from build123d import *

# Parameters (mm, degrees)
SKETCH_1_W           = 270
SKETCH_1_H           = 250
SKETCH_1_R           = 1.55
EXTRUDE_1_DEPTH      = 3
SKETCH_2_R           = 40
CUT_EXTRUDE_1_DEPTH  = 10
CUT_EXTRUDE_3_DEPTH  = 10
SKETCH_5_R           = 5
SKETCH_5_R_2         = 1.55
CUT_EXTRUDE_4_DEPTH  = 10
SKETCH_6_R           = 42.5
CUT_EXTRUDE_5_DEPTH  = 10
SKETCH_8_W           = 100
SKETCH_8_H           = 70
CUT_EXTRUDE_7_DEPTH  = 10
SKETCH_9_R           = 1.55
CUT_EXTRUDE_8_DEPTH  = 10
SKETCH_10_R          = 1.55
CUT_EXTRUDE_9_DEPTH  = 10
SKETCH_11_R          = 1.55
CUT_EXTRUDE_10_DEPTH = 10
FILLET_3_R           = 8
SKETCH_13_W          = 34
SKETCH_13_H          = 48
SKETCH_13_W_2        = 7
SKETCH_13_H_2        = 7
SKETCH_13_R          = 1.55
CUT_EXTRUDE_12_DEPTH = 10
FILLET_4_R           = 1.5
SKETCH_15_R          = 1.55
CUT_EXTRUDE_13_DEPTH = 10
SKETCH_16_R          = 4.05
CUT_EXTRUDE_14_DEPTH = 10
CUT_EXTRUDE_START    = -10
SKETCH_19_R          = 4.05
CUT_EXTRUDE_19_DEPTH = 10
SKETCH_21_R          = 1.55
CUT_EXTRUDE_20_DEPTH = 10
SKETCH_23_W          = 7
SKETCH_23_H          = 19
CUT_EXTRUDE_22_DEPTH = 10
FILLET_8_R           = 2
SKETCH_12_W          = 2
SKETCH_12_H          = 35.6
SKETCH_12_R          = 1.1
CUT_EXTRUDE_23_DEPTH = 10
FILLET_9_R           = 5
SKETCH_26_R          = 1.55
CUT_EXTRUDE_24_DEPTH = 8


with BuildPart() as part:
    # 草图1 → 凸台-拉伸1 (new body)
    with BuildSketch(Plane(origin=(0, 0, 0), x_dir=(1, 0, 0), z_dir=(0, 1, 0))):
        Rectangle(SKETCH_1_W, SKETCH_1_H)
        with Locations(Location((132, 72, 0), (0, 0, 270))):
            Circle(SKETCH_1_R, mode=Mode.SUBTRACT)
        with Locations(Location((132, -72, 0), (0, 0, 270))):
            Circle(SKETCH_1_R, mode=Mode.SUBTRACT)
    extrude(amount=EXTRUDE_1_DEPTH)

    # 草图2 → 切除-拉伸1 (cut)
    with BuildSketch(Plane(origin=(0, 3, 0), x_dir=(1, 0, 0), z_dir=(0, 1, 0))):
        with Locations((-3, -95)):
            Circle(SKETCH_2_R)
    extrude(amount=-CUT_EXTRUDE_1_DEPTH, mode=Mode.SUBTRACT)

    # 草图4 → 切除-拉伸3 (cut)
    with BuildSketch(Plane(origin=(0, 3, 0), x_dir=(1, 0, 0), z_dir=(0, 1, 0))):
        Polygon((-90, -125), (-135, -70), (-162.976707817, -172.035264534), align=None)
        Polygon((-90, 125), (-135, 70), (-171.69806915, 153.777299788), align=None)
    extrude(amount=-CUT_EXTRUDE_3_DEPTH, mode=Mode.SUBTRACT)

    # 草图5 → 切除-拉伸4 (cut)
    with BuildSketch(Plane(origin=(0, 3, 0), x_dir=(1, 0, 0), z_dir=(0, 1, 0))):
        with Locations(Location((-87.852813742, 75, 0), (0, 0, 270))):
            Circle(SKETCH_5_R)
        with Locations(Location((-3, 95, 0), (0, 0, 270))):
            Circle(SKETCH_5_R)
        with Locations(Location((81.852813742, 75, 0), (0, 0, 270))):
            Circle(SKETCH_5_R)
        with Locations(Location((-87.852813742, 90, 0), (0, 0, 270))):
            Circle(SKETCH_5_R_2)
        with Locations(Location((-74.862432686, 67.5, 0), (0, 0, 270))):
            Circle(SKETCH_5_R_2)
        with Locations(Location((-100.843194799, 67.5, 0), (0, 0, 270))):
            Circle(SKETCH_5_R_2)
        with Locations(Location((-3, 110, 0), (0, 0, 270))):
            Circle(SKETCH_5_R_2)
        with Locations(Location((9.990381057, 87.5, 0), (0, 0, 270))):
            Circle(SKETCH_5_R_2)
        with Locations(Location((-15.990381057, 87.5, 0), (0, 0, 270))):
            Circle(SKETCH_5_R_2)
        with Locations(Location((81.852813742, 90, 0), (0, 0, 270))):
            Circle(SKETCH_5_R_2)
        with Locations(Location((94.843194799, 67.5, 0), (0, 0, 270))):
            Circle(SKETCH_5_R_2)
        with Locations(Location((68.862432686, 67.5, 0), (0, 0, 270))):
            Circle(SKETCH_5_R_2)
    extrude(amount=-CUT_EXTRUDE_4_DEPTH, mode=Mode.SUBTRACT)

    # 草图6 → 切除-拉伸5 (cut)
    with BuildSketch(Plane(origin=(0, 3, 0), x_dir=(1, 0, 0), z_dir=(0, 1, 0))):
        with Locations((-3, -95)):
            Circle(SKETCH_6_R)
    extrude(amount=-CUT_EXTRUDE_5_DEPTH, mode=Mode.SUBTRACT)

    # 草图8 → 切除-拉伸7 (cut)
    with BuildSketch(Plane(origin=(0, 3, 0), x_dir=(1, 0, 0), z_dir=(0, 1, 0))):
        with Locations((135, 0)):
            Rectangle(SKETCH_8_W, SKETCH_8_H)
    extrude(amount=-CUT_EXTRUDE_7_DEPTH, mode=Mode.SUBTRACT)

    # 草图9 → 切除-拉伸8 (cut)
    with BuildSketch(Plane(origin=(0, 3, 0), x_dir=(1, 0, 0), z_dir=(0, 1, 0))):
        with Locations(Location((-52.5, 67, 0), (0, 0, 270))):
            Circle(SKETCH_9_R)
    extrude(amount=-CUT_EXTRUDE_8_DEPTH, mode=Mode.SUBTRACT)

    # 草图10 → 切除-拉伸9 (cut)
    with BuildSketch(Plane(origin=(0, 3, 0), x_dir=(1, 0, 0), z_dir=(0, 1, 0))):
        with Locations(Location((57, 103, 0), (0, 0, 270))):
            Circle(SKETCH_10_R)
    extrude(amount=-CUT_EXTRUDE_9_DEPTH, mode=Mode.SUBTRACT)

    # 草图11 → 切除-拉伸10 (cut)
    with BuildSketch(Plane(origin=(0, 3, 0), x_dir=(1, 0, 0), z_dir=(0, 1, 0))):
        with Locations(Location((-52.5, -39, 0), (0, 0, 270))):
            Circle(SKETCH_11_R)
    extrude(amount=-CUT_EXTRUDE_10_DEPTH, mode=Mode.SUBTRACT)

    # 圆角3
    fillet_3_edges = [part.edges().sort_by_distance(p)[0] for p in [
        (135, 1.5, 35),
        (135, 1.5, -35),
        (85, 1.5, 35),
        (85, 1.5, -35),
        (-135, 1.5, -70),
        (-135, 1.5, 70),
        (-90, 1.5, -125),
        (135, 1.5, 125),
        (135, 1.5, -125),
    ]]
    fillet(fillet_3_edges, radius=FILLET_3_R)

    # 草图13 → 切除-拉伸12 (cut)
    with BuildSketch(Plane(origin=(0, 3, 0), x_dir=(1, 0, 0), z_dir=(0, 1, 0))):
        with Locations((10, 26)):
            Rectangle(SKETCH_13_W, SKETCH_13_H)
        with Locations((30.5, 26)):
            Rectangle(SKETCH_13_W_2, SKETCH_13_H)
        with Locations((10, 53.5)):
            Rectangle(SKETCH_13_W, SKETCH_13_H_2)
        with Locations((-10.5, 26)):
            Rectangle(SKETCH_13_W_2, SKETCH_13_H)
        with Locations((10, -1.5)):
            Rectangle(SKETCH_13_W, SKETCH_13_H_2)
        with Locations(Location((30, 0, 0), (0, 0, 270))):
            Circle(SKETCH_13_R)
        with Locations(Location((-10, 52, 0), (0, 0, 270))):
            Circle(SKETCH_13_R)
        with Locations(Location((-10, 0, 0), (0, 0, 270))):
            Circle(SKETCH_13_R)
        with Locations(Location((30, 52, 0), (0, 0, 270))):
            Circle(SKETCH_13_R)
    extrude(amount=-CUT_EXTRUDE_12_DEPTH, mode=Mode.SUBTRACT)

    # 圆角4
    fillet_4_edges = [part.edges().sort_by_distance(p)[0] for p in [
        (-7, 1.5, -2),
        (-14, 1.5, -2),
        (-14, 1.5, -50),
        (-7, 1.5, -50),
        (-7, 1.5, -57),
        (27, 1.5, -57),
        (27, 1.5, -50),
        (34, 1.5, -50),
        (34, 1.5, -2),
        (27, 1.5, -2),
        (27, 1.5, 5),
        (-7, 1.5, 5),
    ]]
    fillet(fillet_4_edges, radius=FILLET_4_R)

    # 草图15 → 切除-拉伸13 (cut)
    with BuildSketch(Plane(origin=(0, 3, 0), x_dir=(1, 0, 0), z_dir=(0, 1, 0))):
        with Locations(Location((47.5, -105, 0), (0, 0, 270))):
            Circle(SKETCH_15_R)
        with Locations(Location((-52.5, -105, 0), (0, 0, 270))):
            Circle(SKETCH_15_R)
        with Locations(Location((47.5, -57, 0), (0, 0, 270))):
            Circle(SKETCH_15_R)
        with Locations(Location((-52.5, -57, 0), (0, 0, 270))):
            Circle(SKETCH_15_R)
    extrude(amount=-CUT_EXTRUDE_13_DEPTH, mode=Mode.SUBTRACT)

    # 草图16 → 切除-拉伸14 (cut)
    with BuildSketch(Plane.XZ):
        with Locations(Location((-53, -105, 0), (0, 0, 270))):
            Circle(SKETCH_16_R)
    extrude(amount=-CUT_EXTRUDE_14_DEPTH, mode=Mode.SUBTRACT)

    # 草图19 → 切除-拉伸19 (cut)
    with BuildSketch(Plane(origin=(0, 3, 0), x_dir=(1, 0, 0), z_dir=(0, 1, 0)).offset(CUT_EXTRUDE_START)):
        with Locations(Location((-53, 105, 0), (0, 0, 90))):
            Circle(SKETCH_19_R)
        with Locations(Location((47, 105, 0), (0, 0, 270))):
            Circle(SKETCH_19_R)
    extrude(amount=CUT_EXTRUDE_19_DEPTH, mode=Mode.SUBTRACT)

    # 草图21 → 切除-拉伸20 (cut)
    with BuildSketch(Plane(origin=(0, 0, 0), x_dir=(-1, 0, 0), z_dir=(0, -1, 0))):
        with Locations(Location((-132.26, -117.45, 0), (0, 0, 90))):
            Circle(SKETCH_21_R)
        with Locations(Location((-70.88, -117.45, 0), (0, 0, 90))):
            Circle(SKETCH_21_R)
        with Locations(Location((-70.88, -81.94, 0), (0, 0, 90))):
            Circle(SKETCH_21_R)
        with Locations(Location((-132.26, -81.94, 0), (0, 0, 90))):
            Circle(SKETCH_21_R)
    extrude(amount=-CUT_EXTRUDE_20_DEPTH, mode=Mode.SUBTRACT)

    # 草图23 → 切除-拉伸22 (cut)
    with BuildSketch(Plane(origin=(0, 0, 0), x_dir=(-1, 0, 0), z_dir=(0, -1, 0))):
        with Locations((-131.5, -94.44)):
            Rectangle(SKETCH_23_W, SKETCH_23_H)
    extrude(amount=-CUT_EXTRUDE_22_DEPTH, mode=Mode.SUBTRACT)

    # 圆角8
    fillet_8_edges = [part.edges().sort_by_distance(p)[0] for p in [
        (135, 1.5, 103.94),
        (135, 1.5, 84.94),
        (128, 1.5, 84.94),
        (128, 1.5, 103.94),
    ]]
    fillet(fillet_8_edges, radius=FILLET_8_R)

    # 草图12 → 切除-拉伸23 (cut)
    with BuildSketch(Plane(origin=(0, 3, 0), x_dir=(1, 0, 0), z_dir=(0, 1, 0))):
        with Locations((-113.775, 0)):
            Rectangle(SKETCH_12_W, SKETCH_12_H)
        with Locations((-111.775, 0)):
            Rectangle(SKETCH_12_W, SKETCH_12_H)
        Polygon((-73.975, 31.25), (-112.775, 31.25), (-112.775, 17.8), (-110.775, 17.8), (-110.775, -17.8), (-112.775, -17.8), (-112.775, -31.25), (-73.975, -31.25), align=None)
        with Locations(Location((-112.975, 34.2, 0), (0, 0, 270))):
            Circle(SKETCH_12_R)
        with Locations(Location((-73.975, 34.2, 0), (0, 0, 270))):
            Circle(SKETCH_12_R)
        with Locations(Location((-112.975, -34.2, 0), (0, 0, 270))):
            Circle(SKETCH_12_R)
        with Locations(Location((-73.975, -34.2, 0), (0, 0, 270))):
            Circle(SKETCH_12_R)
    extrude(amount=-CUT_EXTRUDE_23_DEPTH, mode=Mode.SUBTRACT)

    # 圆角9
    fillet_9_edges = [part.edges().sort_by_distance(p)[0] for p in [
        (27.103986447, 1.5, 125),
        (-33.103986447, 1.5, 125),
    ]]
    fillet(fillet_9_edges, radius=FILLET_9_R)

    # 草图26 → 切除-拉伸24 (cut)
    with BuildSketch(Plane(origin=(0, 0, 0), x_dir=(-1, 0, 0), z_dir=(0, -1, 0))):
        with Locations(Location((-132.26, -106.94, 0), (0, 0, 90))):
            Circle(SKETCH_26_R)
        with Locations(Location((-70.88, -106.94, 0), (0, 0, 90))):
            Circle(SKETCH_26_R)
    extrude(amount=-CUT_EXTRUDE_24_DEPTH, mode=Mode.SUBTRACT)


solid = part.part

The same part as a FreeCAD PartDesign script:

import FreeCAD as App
import Part
import Sketcher
from FreeCAD import Vector


def edges_at(feature, points):
    """Names of the edges that pass closest to the given points."""
    edges = feature.Shape.Edges
    near = lambda p: min(range(len(edges)), key=lambda i: edges[i].distToShape(Part.Vertex(*p))[0])
    return sorted({f"Edge{near(p) + 1}" for p in points})

doc = App.newDocument("Part")
body = doc.addObject("PartDesign::Body", "Body")

# Sketch on XZ plane
sketch1 = doc.addObject("Sketcher::SketchObject", "Sketch")
body.addObject(sketch1)
sketch1.AttachmentSupport = (doc.XZ_Plane, [""])
sketch1.MapMode = "FlatFace"
sketch1.addGeometry(Part.LineSegment(Vector(-135, -125, 0), Vector(-135, 125, 0)), False)
sketch1.addGeometry(Part.LineSegment(Vector(-135, 125, 0), Vector(135, 125, 0)), False)
sketch1.addGeometry(Part.LineSegment(Vector(135, 125, 0), Vector(135, -125, 0)), False)
sketch1.addGeometry(Part.LineSegment(Vector(135, -125, 0), Vector(-135, -125, 0)), False)
sketch1.addGeometry(Part.Circle(Vector(132, 72, 0), Vector(0, 0, 1), 1.6), False)
sketch1.addGeometry(Part.Circle(Vector(132, -72, 0), Vector(0, 0, 1), 1.6), False)
sketch1.addConstraint(Sketcher.Constraint("Coincident", 0, 2, 1, 1))
sketch1.addConstraint(Sketcher.Constraint("Coincident", 1, 2, 2, 1))
sketch1.addConstraint(Sketcher.Constraint("Coincident", 2, 2, 3, 1))
sketch1.addConstraint(Sketcher.Constraint("Coincident", 3, 2, 0, 1))
sketch1.addConstraint(Sketcher.Constraint("Vertical", 0))
sketch1.addConstraint(Sketcher.Constraint("Horizontal", 1))
sketch1.addConstraint(Sketcher.Constraint("Vertical", 2))
sketch1.addConstraint(Sketcher.Constraint("Horizontal", 3))
sketch1.addConstraint(Sketcher.Constraint("Equal", 4, 5))
sketch1.addConstraint(Sketcher.Constraint("Symmetric", 0, 2, 2, 2, -1, 1))
sketch1.addConstraint(Sketcher.Constraint("Symmetric", 4, 3, 5, 3, -1))
sketch1.addConstraint(Sketcher.Constraint("Diameter", 4, 3.1))
sketch1.addConstraint(Sketcher.Constraint("DistanceX", 1, 1, 1, 2, 270.0))
sketch1.addConstraint(Sketcher.Constraint("DistanceY", 0, 1, 0, 2, 250.0))
sketch1.addConstraint(Sketcher.Constraint("DistanceX", -1, 1, 4, 3, 132.0))
sketch1.addConstraint(Sketcher.Constraint("DistanceY", -1, 1, 4, 3, 72.0))
pad1 = doc.addObject("PartDesign::Pad", "Pad")
body.addObject(pad1)
pad1.Profile = sketch1
pad1.Length = 3
pad1.Reversed = True

# Sketch on XZ plane
sketch2 = doc.addObject("Sketcher::SketchObject", "Sketch001")
body.addObject(sketch2)
sketch2.AttachmentSupport = (doc.XZ_Plane, [""])
sketch2.MapMode = "FlatFace"
sketch2.AttachmentOffset = App.Placement(Vector(0, 0, -3), App.Rotation())
sketch2.addGeometry(Part.Circle(Vector(-3, 95, 0), Vector(0, 0, 1), 40), False)
sketch2.addConstraint(Sketcher.Constraint("Diameter", 0, 80.0))
sketch2.addConstraint(Sketcher.Constraint("DistanceX", 0, 3, -1, 1, 3.0))
sketch2.addConstraint(Sketcher.Constraint("DistanceY", -1, 1, 0, 3, 95.0))
pocket1 = doc.addObject("PartDesign::Pocket", "Pocket")
body.addObject(pocket1)
pocket1.Profile = sketch2
pocket1.Length = 10
pocket1.Reversed = True

# Sketch on XZ plane
sketch3 = doc.addObject("Sketcher::SketchObject", "Sketch002")
body.addObject(sketch3)
sketch3.AttachmentSupport = (doc.XZ_Plane, [""])
sketch3.MapMode = "FlatFace"
sketch3.AttachmentOffset = App.Placement(Vector(0, 0, -3), App.Rotation())
sketch3.addGeometry(Part.LineSegment(Vector(-90, 125, 0), Vector(-135, 70, 0)), False)
sketch3.addGeometry(Part.LineSegment(Vector(-135, 70, 0), Vector(-163, 172, 0)), False)
sketch3.addGeometry(Part.LineSegment(Vector(-163, 172, 0), Vector(-90, 125, 0)), False)
sketch3.addGeometry(Part.LineSegment(Vector(-135, -70, 0), Vector(-90, -125, 0)), False)
sketch3.addGeometry(Part.LineSegment(Vector(-90, -125, 0), Vector(-172, -154, 0)), False)
sketch3.addGeometry(Part.LineSegment(Vector(-172, -154, 0), Vector(-135, -70, 0)), False)
sketch3.addConstraint(Sketcher.Constraint("Coincident", 0, 2, 1, 1))
sketch3.addConstraint(Sketcher.Constraint("Coincident", 1, 2, 2, 1))
sketch3.addConstraint(Sketcher.Constraint("Coincident", 2, 2, 0, 1))
sketch3.addConstraint(Sketcher.Constraint("Coincident", 3, 2, 4, 1))
sketch3.addConstraint(Sketcher.Constraint("Coincident", 4, 2, 5, 1))
sketch3.addConstraint(Sketcher.Constraint("Coincident", 5, 2, 3, 1))
sketch3.addConstraint(Sketcher.Constraint("Symmetric", 2, 2, 3, 2, -1))
sketch3.addConstraint(Sketcher.Constraint("Symmetric", 0, 2, 5, 2, -1))
sketch3.addConstraint(Sketcher.Constraint("DistanceX", 0, 2, -1, 1, 135.0))
sketch3.addConstraint(Sketcher.Constraint("DistanceY", -1, 1, 0, 2, 70.0))
sketch3.addConstraint(Sketcher.Constraint("DistanceX", 2, 2, -1, 1, 90.0))
sketch3.addConstraint(Sketcher.Constraint("DistanceY", -1, 1, 2, 2, 125.0))
sketch3.addConstraint(Sketcher.Constraint("DistanceY", 4, 2, -1, 1, 153.7773))
sketch3.addConstraint(Sketcher.Constraint("Distance", 1, 105.801188))
sketch3.addConstraint(Sketcher.Constraint("Distance", 4, 86.618171))
sketch3.addConstraint(Sketcher.Constraint("DistanceX", 4, 2, 1, 2, 8.721361))
pocket2 = doc.addObject("PartDesign::Pocket", "Pocket001")
body.addObject(pocket2)
pocket2.Profile = sketch3
pocket2.Length = 10
pocket2.Reversed = True

# Sketch on XZ plane
sketch4 = doc.addObject("Sketcher::SketchObject", "Sketch003")
body.addObject(sketch4)
sketch4.AttachmentSupport = (doc.XZ_Plane, [""])
sketch4.MapMode = "FlatFace"
sketch4.AttachmentOffset = App.Placement(Vector(0, 0, -3), App.Rotation())
sketch4.addGeometry(Part.Circle(Vector(-87.9, -75, 0), Vector(0, 0, 1), 5), False)
sketch4.addGeometry(Part.Circle(Vector(-3, -95, 0), Vector(0, 0, 1), 5), False)
sketch4.addGeometry(Part.Circle(Vector(81.9, -75, 0), Vector(0, 0, 1), 5), False)
sketch4.addGeometry(Part.Circle(Vector(-87.9, -90, 0), Vector(0, 0, 1), 1.6), False)
sketch4.addGeometry(Part.Circle(Vector(-74.9, -67.5, 0), Vector(0, 0, 1), 1.6), False)
sketch4.addGeometry(Part.Circle(Vector(-100.8, -67.5, 0), Vector(0, 0, 1), 1.6), False)
sketch4.addGeometry(Part.Circle(Vector(-3, -110, 0), Vector(0, 0, 1), 1.6), False)
sketch4.addGeometry(Part.Circle(Vector(10, -87.5, 0), Vector(0, 0, 1), 1.6), False)
sketch4.addGeometry(Part.Circle(Vector(-16, -87.5, 0), Vector(0, 0, 1), 1.6), False)
sketch4.addGeometry(Part.Circle(Vector(81.9, -90, 0), Vector(0, 0, 1), 1.6), False)
sketch4.addGeometry(Part.Circle(Vector(94.8, -67.5, 0), Vector(0, 0, 1), 1.6), False)
sketch4.addGeometry(Part.Circle(Vector(68.9, -67.5, 0), Vector(0, 0, 1), 1.6), False)
sketch4.addConstraint(Sketcher.Constraint("Equal", 0, 1))
sketch4.addConstraint(Sketcher.Constraint("Equal", 1, 2))
sketch4.addConstraint(Sketcher.Constraint("Equal", 3, 4))
sketch4.addConstraint(Sketcher.Constraint("Equal", 4, 5))
sketch4.addConstraint(Sketcher.Constraint("Equal", 5, 6))
sketch4.addConstraint(Sketcher.Constraint("Equal", 6, 7))
sketch4.addConstraint(Sketcher.Constraint("Equal", 7, 8))
sketch4.addConstraint(Sketcher.Constraint("Equal", 8, 9))
sketch4.addConstraint(Sketcher.Constraint("Equal", 9, 10))
sketch4.addConstraint(Sketcher.Constraint("Equal", 10, 11))
sketch4.addConstraint(Sketcher.Constraint("Horizontal", 0, 3, 2, 3))
sketch4.addConstraint(Sketcher.Constraint("Horizontal", 4, 3, 5, 3))
sketch4.addConstraint(Sketcher.Constraint("Horizontal", 7, 3, 8, 3))
sketch4.addConstraint(Sketcher.Constraint("Horizontal", 3, 3, 9, 3))
sketch4.addConstraint(Sketcher.Constraint("Horizontal", 5, 3, 10, 3))
sketch4.addConstraint(Sketcher.Constraint("Horizontal", 10, 3, 11, 3))
sketch4.addConstraint(Sketcher.Constraint("Vertical", 0, 3, 3, 3))
sketch4.addConstraint(Sketcher.Constraint("Vertical", 1, 3, 6, 3))
sketch4.addConstraint(Sketcher.Constraint("Vertical", 2, 3, 9, 3))
sketch4.addConstraint(Sketcher.Constraint("Diameter", 0, 10.0))
sketch4.addConstraint(Sketcher.Constraint("Diameter", 3, 3.1))
sketch4.addConstraint(Sketcher.Constraint("DistanceY", 0, 3, -1, 1, 75.0))
sketch4.addConstraint(Sketcher.Constraint("DistanceX", 1, 3, -1, 1, 3.0))
sketch4.addConstraint(Sketcher.Constraint("DistanceY", 1, 3, -1, 1, 95.0))
sketch4.addConstraint(Sketcher.Constraint("DistanceY", 3, 3, -1, 1, 90.0))
sketch4.addConstraint(Sketcher.Constraint("DistanceY", 6, 3, -1, 1, 110.0))
sketch4.addConstraint(Sketcher.Constraint("DistanceY", 7, 3, 4, 3, 20.0))
sketch4.addConstraint(Sketcher.Constraint("DistanceY", 4, 3, -1, 1, 67.5))
sketch4.addConstraint(Sketcher.Constraint("DistanceX", -1, 1, 7, 3, 9.990381))
sketch4.addConstraint(Sketcher.Constraint("DistanceX", 8, 3, -1, 1, 15.990381))
sketch4.addConstraint(Sketcher.Constraint("DistanceX", 0, 3, 4, 3, 12.990381))
sketch4.addConstraint(Sketcher.Constraint("DistanceX", 5, 3, 0, 3, 12.990381))
sketch4.addConstraint(Sketcher.Constraint("DistanceX", 5, 3, 2, 3, 182.696009))
sketch4.addConstraint(Sketcher.Constraint("DistanceX", 4, 3, 8, 3, 58.872052))
sketch4.addConstraint(Sketcher.Constraint("DistanceX", 2, 3, 10, 3, 12.990381))
sketch4.addConstraint(Sketcher.Constraint("DistanceX", 11, 3, 2, 3, 12.990381))
pocket3 = doc.addObject("PartDesign::Pocket", "Pocket002")
body.addObject(pocket3)
pocket3.Profile = sketch4
pocket3.Length = 10
pocket3.Reversed = True

# Sketch on XZ plane
sketch5 = doc.addObject("Sketcher::SketchObject", "Sketch004")
body.addObject(sketch5)
sketch5.AttachmentSupport = (doc.XZ_Plane, [""])
sketch5.MapMode = "FlatFace"
sketch5.AttachmentOffset = App.Placement(Vector(0, 0, -3), App.Rotation())
sketch5.addGeometry(Part.Circle(Vector(-3, 95, 0), Vector(0, 0, 1), 42), False)
sketch5.addConstraint(Sketcher.Constraint("Diameter", 0, 85.0))
sketch5.addConstraint(Sketcher.Constraint("DistanceX", 0, 3, -1, 1, 3.0))
sketch5.addConstraint(Sketcher.Constraint("DistanceY", -1, 1, 0, 3, 95.0))
pocket4 = doc.addObject("PartDesign::Pocket", "Pocket003")
body.addObject(pocket4)
pocket4.Profile = sketch5
pocket4.Length = 10
pocket4.Reversed = True

# Sketch on XZ plane
sketch6 = doc.addObject("Sketcher::SketchObject", "Sketch005")
body.addObject(sketch6)
sketch6.AttachmentSupport = (doc.XZ_Plane, [""])
sketch6.MapMode = "FlatFace"
sketch6.AttachmentOffset = App.Placement(Vector(0, 0, -3), App.Rotation())
sketch6.addGeometry(Part.LineSegment(Vector(85, -35, 0), Vector(85, 35, 0)), False)
sketch6.addGeometry(Part.LineSegment(Vector(85, 35, 0), Vector(185, 35, 0)), False)
sketch6.addGeometry(Part.LineSegment(Vector(185, 35, 0), Vector(185, -35, 0)), False)
sketch6.addGeometry(Part.LineSegment(Vector(185, -35, 0), Vector(85, -35, 0)), False)
sketch6.addConstraint(Sketcher.Constraint("Coincident", 0, 2, 1, 1))
sketch6.addConstraint(Sketcher.Constraint("Coincident", 1, 2, 2, 1))
sketch6.addConstraint(Sketcher.Constraint("Coincident", 2, 2, 3, 1))
sketch6.addConstraint(Sketcher.Constraint("Coincident", 3, 2, 0, 1))
sketch6.addConstraint(Sketcher.Constraint("Vertical", 0))
sketch6.addConstraint(Sketcher.Constraint("Horizontal", 1))
sketch6.addConstraint(Sketcher.Constraint("Vertical", 2))
sketch6.addConstraint(Sketcher.Constraint("Horizontal", 3))
sketch6.addConstraint(Sketcher.Constraint("DistanceX", 1, 1, 1, 2, 100.0))
sketch6.addConstraint(Sketcher.Constraint("DistanceY", 0, 1, 0, 2, 70.0))
sketch6.addConstraint(Sketcher.Constraint("DistanceX", -1, 1, 0, 2, 85.0))
sketch6.addConstraint(Sketcher.Constraint("DistanceY", -1, 1, 0, 2, 35.0))
pocket5 = doc.addObject("PartDesign::Pocket", "Pocket004")
body.addObject(pocket5)
pocket5.Profile = sketch6
pocket5.Length = 10
pocket5.Reversed = True

# Sketch on XZ plane
sketch7 = doc.addObject("Sketcher::SketchObject", "Sketch006")
body.addObject(sketch7)
sketch7.AttachmentSupport = (doc.XZ_Plane, [""])
sketch7.MapMode = "FlatFace"
sketch7.AttachmentOffset = App.Placement(Vector(0, 0, -3), App.Rotation())
sketch7.addGeometry(Part.Circle(Vector(-52.5, -67, 0), Vector(0, 0, 1), 1.6), False)
sketch7.addConstraint(Sketcher.Constraint("Diameter", 0, 3.1))
sketch7.addConstraint(Sketcher.Constraint("DistanceY", 0, 3, -1, 1, 67.0))
sketch7.addConstraint(Sketcher.Constraint("DistanceX", 0, 3, -1, 1, 52.5))
pocket6 = doc.addObject("PartDesign::Pocket", "Pocket005")
body.addObject(pocket6)
pocket6.Profile = sketch7
pocket6.Length = 10
pocket6.Reversed = True

# Sketch on XZ plane
sketch8 = doc.addObject("Sketcher::SketchObject", "Sketch007")
body.addObject(sketch8)
sketch8.AttachmentSupport = (doc.XZ_Plane, [""])
sketch8.MapMode = "FlatFace"
sketch8.AttachmentOffset = App.Placement(Vector(0, 0, -3), App.Rotation())
sketch8.addGeometry(Part.Circle(Vector(57, -103, 0), Vector(0, 0, 1), 1.6), False)
sketch8.addConstraint(Sketcher.Constraint("Diameter", 0, 3.1))
sketch8.addConstraint(Sketcher.Constraint("DistanceX", -1, 1, 0, 3, 57.0))
sketch8.addConstraint(Sketcher.Constraint("DistanceY", 0, 3, -1, 1, 103.0))
pocket7 = doc.addObject("PartDesign::Pocket", "Pocket006")
body.addObject(pocket7)
pocket7.Profile = sketch8
pocket7.Length = 10
pocket7.Reversed = True

# Sketch on XZ plane
sketch9 = doc.addObject("Sketcher::SketchObject", "Sketch008")
body.addObject(sketch9)
sketch9.AttachmentSupport = (doc.XZ_Plane, [""])
sketch9.MapMode = "FlatFace"
sketch9.AttachmentOffset = App.Placement(Vector(0, 0, -3), App.Rotation())
sketch9.addGeometry(Part.Circle(Vector(-52.5, 39, 0), Vector(0, 0, 1), 1.6), False)
sketch9.addConstraint(Sketcher.Constraint("Diameter", 0, 3.1))
sketch9.addConstraint(Sketcher.Constraint("DistanceY", -1, 1, 0, 3, 39.0))
sketch9.addConstraint(Sketcher.Constraint("DistanceX", 0, 3, -1, 1, 52.5))
pocket8 = doc.addObject("PartDesign::Pocket", "Pocket007")
body.addObject(pocket8)
pocket8.Profile = sketch9
pocket8.Length = 10
pocket8.Reversed = True
doc.recompute()

fillet = doc.addObject("PartDesign::Fillet", "Fillet")
body.addObject(fillet)
fillet.Base = (pocket8, edges_at(pocket8, [
    (135, 1.5, 35),
    (135, 1.5, -35),
    (85, 1.5, 35),
    (85, 1.5, -35),
    (-135, 1.5, -70),
    (-135, 1.5, 70),
    (-90, 1.5, -125),
    (135, 1.5, 125),
    (135, 1.5, -125),
]))
fillet.Radius = 8

# Sketch on XZ plane
sketch10 = doc.addObject("Sketcher::SketchObject", "Sketch009")
body.addObject(sketch10)
sketch10.AttachmentSupport = (doc.XZ_Plane, [""])
sketch10.MapMode = "FlatFace"
sketch10.AttachmentOffset = App.Placement(Vector(0, 0, -3), App.Rotation())
sketch10.addGeometry(Part.LineSegment(Vector(34, -2, 0), Vector(34, -50, 0)), False)
sketch10.addGeometry(Part.LineSegment(Vector(34, -50, 0), Vector(27, -50, 0)), False)
sketch10.addGeometry(Part.LineSegment(Vector(27, -50, 0), Vector(27, -57, 0)), False)
sketch10.addGeometry(Part.LineSegment(Vector(27, -57, 0), Vector(-7, -57, 0)), False)
sketch10.addGeometry(Part.LineSegment(Vector(-7, -57, 0), Vector(-7, -50, 0)), False)
sketch10.addGeometry(Part.LineSegment(Vector(-7, -50, 0), Vector(-14, -50, 0)), False)
sketch10.addGeometry(Part.LineSegment(Vector(-14, -50, 0), Vector(-14, -2, 0)), False)
sketch10.addGeometry(Part.LineSegment(Vector(-14, -2, 0), Vector(-7, -2, 0)), False)
sketch10.addGeometry(Part.LineSegment(Vector(-7, -2, 0), Vector(-7, 5, 0)), False)
sketch10.addGeometry(Part.LineSegment(Vector(-7, 5, 0), Vector(27, 5, 0)), False)
sketch10.addGeometry(Part.LineSegment(Vector(27, 5, 0), Vector(27, -2, 0)), False)
sketch10.addGeometry(Part.LineSegment(Vector(27, -2, 0), Vector(34, -2, 0)), False)
sketch10.addGeometry(Part.Circle(Vector(30, 0, 0), Vector(0, 0, 1), 1.6), False)
sketch10.addGeometry(Part.Circle(Vector(-10, -52, 0), Vector(0, 0, 1), 1.6), False)
sketch10.addGeometry(Part.Circle(Vector(-10, 0, 0), Vector(0, 0, 1), 1.6), False)
sketch10.addGeometry(Part.Circle(Vector(30, -52, 0), Vector(0, 0, 1), 1.6), False)
sketch10.addConstraint(Sketcher.Constraint("Coincident", 0, 2, 1, 1))
sketch10.addConstraint(Sketcher.Constraint("Coincident", 1, 2, 2, 1))
sketch10.addConstraint(Sketcher.Constraint("Coincident", 2, 2, 3, 1))
sketch10.addConstraint(Sketcher.Constraint("Coincident", 3, 2, 4, 1))
sketch10.addConstraint(Sketcher.Constraint("Coincident", 4, 2, 5, 1))
sketch10.addConstraint(Sketcher.Constraint("Coincident", 5, 2, 6, 1))
sketch10.addConstraint(Sketcher.Constraint("Coincident", 6, 2, 7, 1))
sketch10.addConstraint(Sketcher.Constraint("Coincident", 7, 2, 8, 1))
sketch10.addConstraint(Sketcher.Constraint("Coincident", 8, 2, 9, 1))
sketch10.addConstraint(Sketcher.Constraint("Coincident", 9, 2, 10, 1))
sketch10.addConstraint(Sketcher.Constraint("Coincident", 10, 2, 11, 1))
sketch10.addConstraint(Sketcher.Constraint("Coincident", 11, 2, 0, 1))
sketch10.addConstraint(Sketcher.Constraint("Vertical", 0))
sketch10.addConstraint(Sketcher.Constraint("Horizontal", 1))
sketch10.addConstraint(Sketcher.Constraint("Vertical", 2))
sketch10.addConstraint(Sketcher.Constraint("Horizontal", 3))
sketch10.addConstraint(Sketcher.Constraint("Vertical", 4))
sketch10.addConstraint(Sketcher.Constraint("Horizontal", 5))
sketch10.addConstraint(Sketcher.Constraint("Vertical", 6))
sketch10.addConstraint(Sketcher.Constraint("Horizontal", 7))
sketch10.addConstraint(Sketcher.Constraint("Vertical", 8))
sketch10.addConstraint(Sketcher.Constraint("Horizontal", 9))
sketch10.addConstraint(Sketcher.Constraint("Vertical", 10))
sketch10.addConstraint(Sketcher.Constraint("Horizontal", 11))
sketch10.addConstraint(Sketcher.Constraint("Equal", 12, 13))
sketch10.addConstraint(Sketcher.Constraint("Equal", 13, 14))
sketch10.addConstraint(Sketcher.Constraint("Equal", 14, 15))
sketch10.addConstraint(Sketcher.Constraint("PointOnObject", 12, 3, -1))
sketch10.addConstraint(Sketcher.Constraint("PointOnObject", 14, 3, -1))
sketch10.addConstraint(Sketcher.Constraint("Horizontal", 13, 3, 15, 3))
sketch10.addConstraint(Sketcher.Constraint("Horizontal", 1, 2, 4, 2))
sketch10.addConstraint(Sketcher.Constraint("Horizontal", 7, 2, 10, 2))
sketch10.addConstraint(Sketcher.Constraint("Vertical", 13, 3, 14, 3))
sketch10.addConstraint(Sketcher.Constraint("Vertical", 12, 3, 15, 3))
sketch10.addConstraint(Sketcher.Constraint("Vertical", 4, 2, 7, 2))
sketch10.addConstraint(Sketcher.Constraint("Vertical", 2, 2, 9, 2))
sketch10.addConstraint(Sketcher.Constraint("Equal", 1, 5))
sketch10.addConstraint(Sketcher.Constraint("Equal", 11, 2))
sketch10.addConstraint(Sketcher.Constraint("Equal", 4, 8))
sketch10.addConstraint(Sketcher.Constraint("Diameter", 12, 3.1))
sketch10.addConstraint(Sketcher.Constraint("DistanceX", 1, 2, 1, 1, 7.0))
sketch10.addConstraint(Sketcher.Constraint("DistanceX", 3, 2, 3, 1, 34.0))
sketch10.addConstraint(Sketcher.Constraint("DistanceY", 0, 2, 0, 1, 48.0))
sketch10.addConstraint(Sketcher.Constraint("DistanceX", -1, 1, 12, 3, 30.0))
sketch10.addConstraint(Sketcher.Constraint("DistanceX", 13, 3, -1, 1, 10.0))
sketch10.addConstraint(Sketcher.Constraint("DistanceY", 13, 3, -1, 1, 52.0))
sketch10.addConstraint(Sketcher.Constraint("DistanceX", -1, 1, 0, 2, 34.0))
sketch10.addConstraint(Sketcher.Constraint("DistanceY", 0, 2, -1, 1, 50.0))
pocket9 = doc.addObject("PartDesign::Pocket", "Pocket008")
body.addObject(pocket9)
pocket9.Profile = sketch10
pocket9.Length = 10
pocket9.Reversed = True
doc.recompute()

fillet2 = doc.addObject("PartDesign::Fillet", "Fillet001")
body.addObject(fillet2)
fillet2.Base = (pocket9, edges_at(pocket9, [
    (-7, 1.5, -2),
    (-14, 1.5, -2),
    (-14, 1.5, -50),
    (-7, 1.5, -50),
    (-7, 1.5, -57),
    (27, 1.5, -57),
    (27, 1.5, -50),
    (34, 1.5, -50),
    (34, 1.5, -2),
    (27, 1.5, -2),
    (27, 1.5, 5),
    (-7, 1.5, 5),
]))
fillet2.Radius = 1.5

# Sketch on XZ plane
sketch11 = doc.addObject("Sketcher::SketchObject", "Sketch010")
body.addObject(sketch11)
sketch11.AttachmentSupport = (doc.XZ_Plane, [""])
sketch11.MapMode = "FlatFace"
sketch11.AttachmentOffset = App.Placement(Vector(0, 0, -3), App.Rotation())
sketch11.addGeometry(Part.Circle(Vector(47.5, 105, 0), Vector(0, 0, 1), 1.6), False)
sketch11.addGeometry(Part.Circle(Vector(-52.5, 105, 0), Vector(0, 0, 1), 1.6), False)
sketch11.addGeometry(Part.Circle(Vector(47.5, 57, 0), Vector(0, 0, 1), 1.6), False)
sketch11.addGeometry(Part.Circle(Vector(-52.5, 57, 0), Vector(0, 0, 1), 1.6), False)
sketch11.addConstraint(Sketcher.Constraint("Equal", 0, 1))
sketch11.addConstraint(Sketcher.Constraint("Equal", 1, 2))
sketch11.addConstraint(Sketcher.Constraint("Equal", 2, 3))
sketch11.addConstraint(Sketcher.Constraint("Horizontal", 0, 3, 1, 3))
sketch11.addConstraint(Sketcher.Constraint("Horizontal", 2, 3, 3, 3))
sketch11.addConstraint(Sketcher.Constraint("Vertical", 0, 3, 2, 3))
sketch11.addConstraint(Sketcher.Constraint("Vertical", 1, 3, 3, 3))
sketch11.addConstraint(Sketcher.Constraint("Diameter", 0, 3.1))
sketch11.addConstraint(Sketcher.Constraint("DistanceY", -1, 1, 0, 3, 105.0))
sketch11.addConstraint(Sketcher.Constraint("DistanceY", -1, 1, 2, 3, 57.0))
sketch11.addConstraint(Sketcher.Constraint("DistanceX", 1, 3, 0, 3, 100.0))
sketch11.addConstraint(Sketcher.Constraint("DistanceX", -1, 1, 0, 3, 47.5))
pocket10 = doc.addObject("PartDesign::Pocket", "Pocket009")
body.addObject(pocket10)
pocket10.Profile = sketch11
pocket10.Length = 10
pocket10.Reversed = True

# Sketch on XZ plane
sketch12 = doc.addObject("Sketcher::SketchObject", "Sketch011")
body.addObject(sketch12)
sketch12.AttachmentSupport = (doc.XZ_Plane, [""])
sketch12.MapMode = "FlatFace"
sketch12.addGeometry(Part.Circle(Vector(-53, -105, 0), Vector(0, 0, 1), 4), False)
sketch12.addConstraint(Sketcher.Constraint("Diameter", 0, 8.1))
sketch12.addConstraint(Sketcher.Constraint("DistanceX", 0, 3, -1, 1, 53.0))
sketch12.addConstraint(Sketcher.Constraint("DistanceY", 0, 3, -1, 1, 105.0))
pocket11 = doc.addObject("PartDesign::Pocket", "Pocket010")
body.addObject(pocket11)
pocket11.Profile = sketch12
pocket11.Length = 10

# Sketch on XZ plane
sketch13 = doc.addObject("Sketcher::SketchObject", "Sketch012")
body.addObject(sketch13)
sketch13.AttachmentSupport = (doc.XZ_Plane, [""])
sketch13.MapMode = "FlatFace"
sketch13.AttachmentOffset = App.Placement(Vector(0, 0, 7), App.Rotation())
sketch13.addGeometry(Part.Circle(Vector(-53, -105, 0), Vector(0, 0, 1), 4), False)
sketch13.addGeometry(Part.Circle(Vector(47, -105, 0), Vector(0, 0, 1), 4), False)
sketch13.addConstraint(Sketcher.Constraint("Equal", 0, 1))
sketch13.addConstraint(Sketcher.Constraint("Horizontal", 0, 3, 1, 3))
sketch13.addConstraint(Sketcher.Constraint("Diameter", 0, 8.1))
sketch13.addConstraint(Sketcher.Constraint("DistanceX", 0, 3, -1, 1, 53.0))
sketch13.addConstraint(Sketcher.Constraint("DistanceY", 0, 3, -1, 1, 105.0))
sketch13.addConstraint(Sketcher.Constraint("DistanceX", -1, 1, 1, 3, 47.0))
pocket12 = doc.addObject("PartDesign::Pocket", "Pocket011")
body.addObject(pocket12)
pocket12.Profile = sketch13
pocket12.Length = 10

# Sketch on XZ plane
sketch14 = doc.addObject("Sketcher::SketchObject", "Sketch013")
body.addObject(sketch14)
sketch14.AttachmentSupport = (doc.XZ_Plane, [""])
sketch14.MapMode = "FlatFace"
sketch14.addGeometry(Part.Circle(Vector(132.3, 117.5, 0), Vector(0, 0, 1), 1.6), False)
sketch14.addGeometry(Part.Circle(Vector(70.9, 117.5, 0), Vector(0, 0, 1), 1.6), False)
sketch14.addGeometry(Part.Circle(Vector(70.9, 81.9, 0), Vector(0, 0, 1), 1.6), False)
sketch14.addGeometry(Part.Circle(Vector(132.3, 81.9, 0), Vector(0, 0, 1), 1.6), False)
sketch14.addConstraint(Sketcher.Constraint("Equal", 0, 1))
sketch14.addConstraint(Sketcher.Constraint("Equal", 1, 2))
sketch14.addConstraint(Sketcher.Constraint("Equal", 2, 3))
sketch14.addConstraint(Sketcher.Constraint("Horizontal", 0, 3, 1, 3))
sketch14.addConstraint(Sketcher.Constraint("Horizontal", 2, 3, 3, 3))
sketch14.addConstraint(Sketcher.Constraint("Vertical", 1, 3, 2, 3))
sketch14.addConstraint(Sketcher.Constraint("Vertical", 0, 3, 3, 3))
sketch14.addConstraint(Sketcher.Constraint("Diameter", 0, 3.1))
sketch14.addConstraint(Sketcher.Constraint("DistanceX", -1, 1, 0, 3, 132.26))
sketch14.addConstraint(Sketcher.Constraint("DistanceY", -1, 1, 0, 3, 117.45))
sketch14.addConstraint(Sketcher.Constraint("DistanceX", -1, 1, 1, 3, 70.88))
sketch14.addConstraint(Sketcher.Constraint("DistanceY", -1, 1, 2, 3, 81.94))
pocket13 = doc.addObject("PartDesign::Pocket", "Pocket012")
body.addObject(pocket13)
pocket13.Profile = sketch14
pocket13.Length = 10

# Sketch on XZ plane
sketch15 = doc.addObject("Sketcher::SketchObject", "Sketch014")
body.addObject(sketch15)
sketch15.AttachmentSupport = (doc.XZ_Plane, [""])
sketch15.MapMode = "FlatFace"
sketch15.addGeometry(Part.LineSegment(Vector(135, 85, 0), Vector(135, 104, 0)), False)
sketch15.addGeometry(Part.LineSegment(Vector(135, 104, 0), Vector(128, 104, 0)), False)
sketch15.addGeometry(Part.LineSegment(Vector(128, 104, 0), Vector(128, 85, 0)), False)
sketch15.addGeometry(Part.LineSegment(Vector(128, 85, 0), Vector(135, 85, 0)), False)
sketch15.addConstraint(Sketcher.Constraint("Coincident", 0, 2, 1, 1))
sketch15.addConstraint(Sketcher.Constraint("Coincident", 1, 2, 2, 1))
sketch15.addConstraint(Sketcher.Constraint("Coincident", 2, 2, 3, 1))
sketch15.addConstraint(Sketcher.Constraint("Coincident", 3, 2, 0, 1))
sketch15.addConstraint(Sketcher.Constraint("Vertical", 0))
sketch15.addConstraint(Sketcher.Constraint("Horizontal", 1))
sketch15.addConstraint(Sketcher.Constraint("Vertical", 2))
sketch15.addConstraint(Sketcher.Constraint("Horizontal", 3))
sketch15.addConstraint(Sketcher.Constraint("DistanceX", 1, 2, 1, 1, 7.0))
sketch15.addConstraint(Sketcher.Constraint("DistanceY", 0, 1, 0, 2, 19.0))
sketch15.addConstraint(Sketcher.Constraint("DistanceX", -1, 1, 0, 2, 135.0))
sketch15.addConstraint(Sketcher.Constraint("DistanceY", -1, 1, 0, 2, 103.94))
pocket14 = doc.addObject("PartDesign::Pocket", "Pocket013")
body.addObject(pocket14)
pocket14.Profile = sketch15
pocket14.Length = 10
doc.recompute()

fillet3 = doc.addObject("PartDesign::Fillet", "Fillet002")
body.addObject(fillet3)
fillet3.Base = (pocket14, edges_at(pocket14, [
    (135, 1.5, 103.94),
    (135, 1.5, 84.94),
    (128, 1.5, 84.94),
    (128, 1.5, 103.94),
]))
fillet3.Radius = 2

# Sketch on XZ plane
sketch16 = doc.addObject("Sketcher::SketchObject", "Sketch015")
body.addObject(sketch16)
sketch16.AttachmentSupport = (doc.XZ_Plane, [""])
sketch16.MapMode = "FlatFace"
sketch16.AttachmentOffset = App.Placement(Vector(0, 0, -3), App.Rotation())
sketch16.addGeometry(Part.LineSegment(Vector(-114.8, -17.8, 0), Vector(-114.8, 17.8, 0)), False)
sketch16.addGeometry(Part.LineSegment(Vector(-114.8, 17.8, 0), Vector(-112.8, 17.8, 0)), False)
sketch16.addGeometry(Part.LineSegment(Vector(-112.8, 17.8, 0), Vector(-112.8, 31.2, 0)), False)
sketch16.addGeometry(Part.LineSegment(Vector(-112.8, 31.2, 0), Vector(-74, 31.2, 0)), False)
sketch16.addGeometry(Part.LineSegment(Vector(-74, 31.2, 0), Vector(-74, -31.2, 0)), False)
sketch16.addGeometry(Part.LineSegment(Vector(-74, -31.2, 0), Vector(-112.8, -31.2, 0)), False)
sketch16.addGeometry(Part.LineSegment(Vector(-112.8, -31.2, 0), Vector(-112.8, -17.8, 0)), False)
sketch16.addGeometry(Part.LineSegment(Vector(-112.8, -17.8, 0), Vector(-114.8, -17.8, 0)), False)
sketch16.addGeometry(Part.Circle(Vector(-113, -34.2, 0), Vector(0, 0, 1), 1.1), False)
sketch16.addGeometry(Part.Circle(Vector(-74, -34.2, 0), Vector(0, 0, 1), 1.1), False)
sketch16.addGeometry(Part.Circle(Vector(-113, 34.2, 0), Vector(0, 0, 1), 1.1), False)
sketch16.addGeometry(Part.Circle(Vector(-74, 34.2, 0), Vector(0, 0, 1), 1.1), False)
sketch16.addConstraint(Sketcher.Constraint("Coincident", 0, 2, 1, 1))
sketch16.addConstraint(Sketcher.Constraint("Coincident", 1, 2, 2, 1))
sketch16.addConstraint(Sketcher.Constraint("Coincident", 2, 2, 3, 1))
sketch16.addConstraint(Sketcher.Constraint("Coincident", 3, 2, 4, 1))
sketch16.addConstraint(Sketcher.Constraint("Coincident", 4, 2, 5, 1))
sketch16.addConstraint(Sketcher.Constraint("Coincident", 5, 2, 6, 1))
sketch16.addConstraint(Sketcher.Constraint("Coincident", 6, 2, 7, 1))
sketch16.addConstraint(Sketcher.Constraint("Coincident", 7, 2, 0, 1))
sketch16.addConstraint(Sketcher.Constraint("Vertical", 0))
sketch16.addConstraint(Sketcher.Constraint("Horizontal", 1))
sketch16.addConstraint(Sketcher.Constraint("Vertical", 2))
sketch16.addConstraint(Sketcher.Constraint("Horizontal", 3))
sketch16.addConstraint(Sketcher.Constraint("Vertical", 4))
sketch16.addConstraint(Sketcher.Constraint("Horizontal", 5))
sketch16.addConstraint(Sketcher.Constraint("Vertical", 6))
sketch16.addConstraint(Sketcher.Constraint("Horizontal", 7))
sketch16.addConstraint(Sketcher.Constraint("Equal", 8, 9))
sketch16.addConstraint(Sketcher.Constraint("Equal", 9, 10))
sketch16.addConstraint(Sketcher.Constraint("Equal", 10, 11))
sketch16.addConstraint(Sketcher.Constraint("Symmetric", 8, 3, 10, 3, -1))
sketch16.addConstraint(Sketcher.Constraint("Symmetric", 9, 3, 11, 3, -1))
sketch16.addConstraint(Sketcher.Constraint("Symmetric", 2, 2, 5, 2, -1))
sketch16.addConstraint(Sketcher.Constraint("Horizontal", 8, 3, 9, 3))
sketch16.addConstraint(Sketcher.Constraint("Vertical", 11, 3, 3, 2))
sketch16.addConstraint(Sketcher.Constraint("Equal", 2, 6))
sketch16.addConstraint(Sketcher.Constraint("Diameter", 8, 2.2))
sketch16.addConstraint(Sketcher.Constraint("DistanceX", 1, 1, 1, 2, 2.0))
sketch16.addConstraint(Sketcher.Constraint("DistanceX", 3, 1, 3, 2, 38.8))
sketch16.addConstraint(Sketcher.Constraint("DistanceY", 0, 1, 0, 2, 35.6))
sketch16.addConstraint(Sketcher.Constraint("DistanceY", 4, 2, 4, 1, 62.5))
sketch16.addConstraint(Sketcher.Constraint("DistanceX", 8, 3, 9, 3, 39.0))
sketch16.addConstraint(Sketcher.Constraint("DistanceY", 8, 3, 0, 2, 52.0))
sketch16.addConstraint(Sketcher.Constraint("DistanceX", 8, 3, -1, 1, 112.975))
pocket15 = doc.addObject("PartDesign::Pocket", "Pocket014")
body.addObject(pocket15)
pocket15.Profile = sketch16
pocket15.Length = 10
pocket15.Reversed = True
doc.recompute()

fillet4 = doc.addObject("PartDesign::Fillet", "Fillet003")
body.addObject(fillet4)
fillet4.Base = (pocket15, edges_at(pocket15, [(27.104, 1.5, 125), (-33.104, 1.5, 125)]))
fillet4.Radius = 5

# Sketch on XZ plane
sketch17 = doc.addObject("Sketcher::SketchObject", "Sketch016")
body.addObject(sketch17)
sketch17.AttachmentSupport = (doc.XZ_Plane, [""])
sketch17.MapMode = "FlatFace"
sketch17.addGeometry(Part.Circle(Vector(132.3, 106.9, 0), Vector(0, 0, 1), 1.6), False)
sketch17.addGeometry(Part.Circle(Vector(70.9, 106.9, 0), Vector(0, 0, 1), 1.6), False)
sketch17.addConstraint(Sketcher.Constraint("Equal", 0, 1))
sketch17.addConstraint(Sketcher.Constraint("Horizontal", 0, 3, 1, 3))
sketch17.addConstraint(Sketcher.Constraint("Diameter", 0, 3.1))
sketch17.addConstraint(Sketcher.Constraint("DistanceX", -1, 1, 0, 3, 132.26))
sketch17.addConstraint(Sketcher.Constraint("DistanceY", -1, 1, 0, 3, 106.94))
sketch17.addConstraint(Sketcher.Constraint("DistanceX", -1, 1, 1, 3, 70.88))
pocket16 = doc.addObject("PartDesign::Pocket", "Pocket015")
body.addObject(pocket16)
pocket16.Profile = sketch17
pocket16.Length = 8

doc.recompute()
